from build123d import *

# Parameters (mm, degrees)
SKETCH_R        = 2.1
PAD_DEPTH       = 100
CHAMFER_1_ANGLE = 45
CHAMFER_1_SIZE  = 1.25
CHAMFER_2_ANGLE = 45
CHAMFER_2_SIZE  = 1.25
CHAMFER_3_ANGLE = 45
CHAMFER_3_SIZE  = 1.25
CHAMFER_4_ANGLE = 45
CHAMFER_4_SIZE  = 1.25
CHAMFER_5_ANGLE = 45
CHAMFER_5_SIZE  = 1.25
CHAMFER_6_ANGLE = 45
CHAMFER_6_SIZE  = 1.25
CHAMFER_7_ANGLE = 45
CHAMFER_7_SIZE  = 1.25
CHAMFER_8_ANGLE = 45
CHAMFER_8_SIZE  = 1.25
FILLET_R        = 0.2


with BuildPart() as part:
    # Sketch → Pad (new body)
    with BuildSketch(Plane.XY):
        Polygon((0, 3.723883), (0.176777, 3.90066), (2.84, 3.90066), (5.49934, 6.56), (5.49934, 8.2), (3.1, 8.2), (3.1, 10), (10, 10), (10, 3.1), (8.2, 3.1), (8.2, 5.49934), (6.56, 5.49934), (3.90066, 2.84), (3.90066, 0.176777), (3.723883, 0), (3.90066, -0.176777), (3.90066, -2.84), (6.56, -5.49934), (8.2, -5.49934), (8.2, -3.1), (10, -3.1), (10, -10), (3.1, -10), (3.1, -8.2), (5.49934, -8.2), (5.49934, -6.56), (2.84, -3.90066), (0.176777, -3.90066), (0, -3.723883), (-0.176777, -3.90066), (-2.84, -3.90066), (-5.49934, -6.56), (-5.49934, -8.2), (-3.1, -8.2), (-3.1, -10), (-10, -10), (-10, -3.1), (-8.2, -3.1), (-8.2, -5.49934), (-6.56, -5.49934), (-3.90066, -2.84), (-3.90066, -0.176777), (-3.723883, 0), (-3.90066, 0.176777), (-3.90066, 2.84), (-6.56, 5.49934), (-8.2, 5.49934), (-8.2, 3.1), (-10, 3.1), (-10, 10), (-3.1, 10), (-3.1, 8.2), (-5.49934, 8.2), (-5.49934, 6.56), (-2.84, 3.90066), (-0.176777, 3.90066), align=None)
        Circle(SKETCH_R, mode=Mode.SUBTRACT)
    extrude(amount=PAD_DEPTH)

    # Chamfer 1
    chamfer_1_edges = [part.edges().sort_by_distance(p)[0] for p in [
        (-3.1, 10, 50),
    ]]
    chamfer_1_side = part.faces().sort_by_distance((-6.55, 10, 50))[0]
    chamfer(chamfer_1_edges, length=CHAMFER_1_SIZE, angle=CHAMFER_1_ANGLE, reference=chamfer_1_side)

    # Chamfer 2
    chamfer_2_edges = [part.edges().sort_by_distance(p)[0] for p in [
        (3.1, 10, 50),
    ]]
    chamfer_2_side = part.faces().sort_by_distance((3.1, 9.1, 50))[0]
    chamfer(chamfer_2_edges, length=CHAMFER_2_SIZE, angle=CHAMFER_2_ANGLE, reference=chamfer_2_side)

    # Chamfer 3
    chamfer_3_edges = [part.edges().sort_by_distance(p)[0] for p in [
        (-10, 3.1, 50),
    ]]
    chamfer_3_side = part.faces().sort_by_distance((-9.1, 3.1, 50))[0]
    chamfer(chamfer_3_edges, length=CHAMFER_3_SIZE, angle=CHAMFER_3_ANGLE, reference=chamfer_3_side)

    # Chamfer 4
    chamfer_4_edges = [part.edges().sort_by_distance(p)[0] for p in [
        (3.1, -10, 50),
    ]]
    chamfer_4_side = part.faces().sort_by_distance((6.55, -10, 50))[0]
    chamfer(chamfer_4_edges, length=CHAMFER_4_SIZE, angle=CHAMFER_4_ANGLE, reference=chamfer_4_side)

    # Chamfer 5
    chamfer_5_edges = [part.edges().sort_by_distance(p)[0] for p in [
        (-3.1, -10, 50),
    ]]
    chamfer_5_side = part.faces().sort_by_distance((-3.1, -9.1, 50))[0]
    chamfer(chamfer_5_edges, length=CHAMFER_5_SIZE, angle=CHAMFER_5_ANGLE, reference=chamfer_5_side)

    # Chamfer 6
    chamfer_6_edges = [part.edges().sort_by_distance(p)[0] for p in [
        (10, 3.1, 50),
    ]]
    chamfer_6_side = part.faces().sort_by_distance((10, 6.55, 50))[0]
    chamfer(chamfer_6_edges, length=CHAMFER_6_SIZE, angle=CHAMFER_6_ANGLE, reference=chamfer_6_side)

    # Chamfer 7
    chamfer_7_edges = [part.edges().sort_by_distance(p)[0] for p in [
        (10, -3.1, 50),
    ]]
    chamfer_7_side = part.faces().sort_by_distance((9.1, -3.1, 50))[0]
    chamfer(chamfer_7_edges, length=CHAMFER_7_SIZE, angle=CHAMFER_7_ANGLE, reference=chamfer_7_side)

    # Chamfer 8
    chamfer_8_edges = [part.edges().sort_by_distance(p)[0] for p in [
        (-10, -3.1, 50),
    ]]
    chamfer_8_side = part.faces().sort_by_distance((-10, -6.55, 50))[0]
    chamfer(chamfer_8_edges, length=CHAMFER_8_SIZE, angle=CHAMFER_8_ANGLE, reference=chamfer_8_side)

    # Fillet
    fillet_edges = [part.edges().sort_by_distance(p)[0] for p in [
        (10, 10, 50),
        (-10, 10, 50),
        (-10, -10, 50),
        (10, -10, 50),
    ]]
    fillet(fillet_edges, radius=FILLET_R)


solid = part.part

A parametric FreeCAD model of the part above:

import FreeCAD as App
import Part
import Sketcher

V = App.Vector
Q = App.Units.Quantity


def edges_at(feature, points):
    """Names of the edges that pass closest to the given points."""
    edges = feature.Shape.Edges
    near = lambda p: min(range(len(edges)), key=lambda i: edges[i].distToShape(Part.Vertex(*p))[0])
    return sorted({f"Edge{near(p) + 1}" for p in points})


def add_polygon(sketch, points):
    """Adds a closed chain of lines whose ends are joined by coincident constraints."""
    first, n = sketch.GeometryCount, len(points)
    for a, b in zip(points, points[1:] + points[:1]):
        sketch.addGeometry(Part.LineSegment(App.Vector(*a, 0), App.Vector(*b, 0)), False)
    for i in range(n):
        sketch.addConstraint(Sketcher.Constraint("Coincident", first + i, 2, first + (i + 1) % n, 1))

doc = App.newDocument("Part")
params = doc.addObject("Spreadsheet::Sheet", "Params")
for row, (alias, value) in enumerate([
    ("sketch1_diameter", "4.2 mm"),
    ("sketch1_width", "6.9 mm"),
    ("sketch1_width2", "1.8 mm"),
    ("sketch1_width3", "1.64 mm"),
    ("sketch1_length", "0.25 mm"),
    ("pad1_length", "100 mm"),
    ("chamfer_size", "1.25 mm"),
    ("chamfer2_size", "1.25 mm"),
    ("chamfer3_size", "1.25 mm"),
    ("chamfer4_size", "1.25 mm"),
    ("chamfer5_size", "1.25 mm"),
    ("chamfer6_size", "1.25 mm"),
    ("chamfer7_size", "1.25 mm"),
    ("chamfer8_size", "1.25 mm"),
    ("fillet_radius", "0.2 mm"),
], start=1):
    params.set(f"A{row}", alias)
    params.set(f"B{row}", "=" + value)
    params.setAlias(f"B{row}", alias)

body = doc.addObject("PartDesign::Body", "Body")

sketch1 = body.newObject("Sketcher::SketchObject", "Sketch")
sketch1.AttachmentSupport = (doc.getObject("XY_Plane"), [""])
sketch1.MapMode = "FlatFace"
add_polygon(sketch1, [(0.18, 3.9), (0, 3.72), (-0.18, 3.9), (-2.84, 3.9), (-5.5, 6.56), (-5.5, 8.2), (-3.1, 8.2), (-3.1, 10), (-10, 10), (-10, 3.1), (-8.2, 3.1), (-8.2, 5.5), (-6.56, 5.5), (-3.9, 2.84), (-3.9, 0.18), (-3.72, 0), (-3.9, -0.18), (-3.9, -2.84), (-6.56, -5.5), (-8.2, -5.5), (-8.2, -3.1), (-10, -3.1), (-10, -10), (-3.1, -10), (-3.1, -8.2), (-5.5, -8.2), (-5.5, -6.56), (-2.84, -3.9), (-0.18, -3.9), (0, -3.72), (0.18, -3.9), (2.84, -3.9), (5.5, -6.56), (5.5, -8.2), (3.1, -8.2), (3.1, -10), (10, -10), (10, -3.1), (8.2, -3.1), (8.2, -5.5), (6.56, -5.5), (3.9, -2.84), (3.9, -0.18), (3.72, 0), (3.9, 0.18), (3.9, 2.84), (6.56, 5.5), (8.2, 5.5), (8.2, 3.1), (10, 3.1), (10, 10), (3.1, 10), (3.1, 8.2), (5.5, 8.2), (5.5, 6.56), (2.84, 3.9)])
sketch1.addGeometry(Part.Circle(V(0, 0, 0), V(0, 0, 1), 2.1), False)
sketch1.addConstraint([
    Sketcher.Constraint("Horizontal", 2),
    Sketcher.Constraint("Vertical", 4),
    Sketcher.Constraint("Horizontal", 5),
    Sketcher.Constraint("Vertical", 6),
    Sketcher.Constraint("Horizontal", 7),
    Sketcher.Constraint("Vertical", 8),
    Sketcher.Constraint("Horizontal", 9),
    Sketcher.Constraint("Vertical", 10),
    Sketcher.Constraint("Horizontal", 11),
    Sketcher.Constraint("Vertical", 13),
    Sketcher.Constraint("Vertical", 16),
    Sketcher.Constraint("Horizontal", 18),
    Sketcher.Constraint("Vertical", 19),
    Sketcher.Constraint("Horizontal", 20),
    Sketcher.Constraint("Vertical", 21),
    Sketcher.Constraint("Horizontal", 22),
    Sketcher.Constraint("Vertical", 23),
    Sketcher.Constraint("Horizontal", 24),
    Sketcher.Constraint("Vertical", 25),
    Sketcher.Constraint("Horizontal", 27),
    Sketcher.Constraint("Horizontal", 30),
    Sketcher.Constraint("Vertical", 32),
    Sketcher.Constraint("Horizontal", 33),
    Sketcher.Constraint("Vertical", 34),
    Sketcher.Constraint("Horizontal", 35),
    Sketcher.Constraint("Vertical", 36),
    Sketcher.Constraint("Horizontal", 37),
    Sketcher.Constraint("Vertical", 38),
    Sketcher.Constraint("Horizontal", 39),
    Sketcher.Constraint("Vertical", 41),
    Sketcher.Constraint("Vertical", 44),
    Sketcher.Constraint("Horizontal", 46),
    Sketcher.Constraint("Vertical", 47),
    Sketcher.Constraint("Horizontal", 48),
    Sketcher.Constraint("Vertical", 49),
    Sketcher.Constraint("Horizontal", 50),
    Sketcher.Constraint("Vertical", 51),
    Sketcher.Constraint("Horizontal", 52),
    Sketcher.Constraint("Vertical", 53),
    Sketcher.Constraint("Horizontal", 55),
    Sketcher.Constraint("Coincident", 56, 3, -1, 1),
    Sketcher.Constraint("Symmetric", 0, 2, 28, 2, -1, 1),
    Sketcher.Constraint("Symmetric", 1, 2, 29, 2, -1, 1),
    Sketcher.Constraint("Symmetric", 3, 2, 31, 2, -1, 1),
    Sketcher.Constraint("Symmetric", 5, 2, 33, 2, -1, 1),
    Sketcher.Constraint("Symmetric", 7, 2, 35, 2, -1, 1),
    Sketcher.Constraint("Symmetric", 9, 2, 37, 2, -1, 1),
    Sketcher.Constraint("Symmetric", 11, 2, 39, 2, -1, 1),
    Sketcher.Constraint("Symmetric", 12, 2, 40, 2, -1, 1),
    Sketcher.Constraint("Symmetric", 14, 2, 42, 2, -1, 1),
    Sketcher.Constraint("Symmetric", 15, 2, 43, 2, -1, 1),
    Sketcher.Constraint("Symmetric", 17, 2, 45, 2, -1, 1),
    Sketcher.Constraint("Symmetric", 19, 2, 47, 2, -1, 1),
    Sketcher.Constraint("Symmetric", 21, 2, 49, 2, -1, 1),
    Sketcher.Constraint("Symmetric", 23, 2, 51, 2, -1, 1),
    Sketcher.Constraint("Symmetric", 25, 2, 53, 2, -1, 1),
    Sketcher.Constraint("Symmetric", 26, 2, 54, 2, -1, 1),
    Sketcher.Constraint("Symmetric", 27, 2, 29, 2, -2),
    Sketcher.Constraint("Symmetric", 25, 2, 31, 2, -2),
    Sketcher.Constraint("Symmetric", 23, 2, 33, 2, -2),
    Sketcher.Constraint("Symmetric", 21, 2, 35, 2, -2),
    Sketcher.Constraint("Symmetric", 19, 2, 37, 2, -2),
    Sketcher.Constraint("Symmetric", 17, 2, 39, 2, -2),
    Sketcher.Constraint("Symmetric", 16, 2, 40, 2, -2),
    Sketcher.Constraint("PointOnObject", 0, 2, -2),
    Sketcher.Constraint("PointOnObject", 14, 2, -1),
    Sketcher.Constraint("Perpendicular", 0, 1),
    Sketcher.Constraint("Parallel", 1, 3),
    Sketcher.Constraint("Parallel", 3, 12),
    Sketcher.Constraint("Parallel", 12, 14),
    Sketcher.Constraint("Perpendicular", 14, 15),
    Sketcher.Constraint("Parallel", 15, 17),
    Sketcher.Constraint("Parallel", 17, 26),
    Sketcher.Constraint("Parallel", 29, 31),
    Sketcher.Constraint("Parallel", 40, 42),
    Sketcher.Constraint("Parallel", 43, 45),
    Sketcher.Constraint("Equal", 46, 4),
    Sketcher.Constraint("Equal", 48, 6),
    Sketcher.Constraint("Equal", 50, 8),
    Sketcher.Constraint("Equal", 52, 10),
    Sketcher.Constraint("Equal", 55, 13),
    Sketcher.Constraint("Equal", 3, 12),
    Sketcher.Constraint("Equal", 1, 14),
    Sketcher.Constraint("Diameter", 56, Q("4.2 mm")),
    Sketcher.Constraint("DistanceX", 7, 2, 7, 1, Q("6.9 mm")),
    Sketcher.Constraint("DistanceX", 9, 1, 9, 2, Q("1.8 mm")),
    Sketcher.Constraint("DistanceY", -1, 1, 6, 2, Q("10 mm")),
    Sketcher.Constraint("DistanceX", 11, 1, 11, 2, Q("1.64 mm")),
    Sketcher.Constraint("Distance", 0, Q("0.25 mm")),
    Sketcher.Constraint("DistanceX", 2, 2, -1, 1, Q("2.84 mm")),
    Sketcher.Constraint("DistanceX", 5, 1, 5, 2, Q("2.39934 mm")),
])
sketch1.setExpression("Constraints[139]", "Params.sketch1_diameter")
sketch1.setExpression("Constraints[140]", "Params.sketch1_width")
sketch1.setExpression("Constraints[141]", "Params.sketch1_width2")
sketch1.setExpression("Constraints[143]", "Params.sketch1_width3")
sketch1.setExpression("Constraints[144]", "Params.sketch1_length")
pad1 = body.newObject("PartDesign::Pad", "Pad")
pad1.Profile = sketch1
pad1.setExpression("Length", "Params.pad1_length")
doc.recompute()

chamfer = body.newObject("PartDesign::Chamfer", "Chamfer")
chamfer.Base = (pad1, edges_at(pad1, [(-3.1, 10, 50)]))
chamfer.setExpression("Size", "Params.chamfer_size")
doc.recompute()

chamfer2 = body.newObject("PartDesign::Chamfer", "Chamfer001")
chamfer2.Base = (chamfer, edges_at(chamfer, [(3.1, 10, 50)]))
chamfer2.setExpression("Size", "Params.chamfer2_size")
doc.recompute()

chamfer3 = body.newObject("PartDesign::Chamfer", "Chamfer002")
chamfer3.Base = (chamfer2, edges_at(chamfer2, [(-10, 3.1, 50)]))
chamfer3.setExpression("Size", "Params.chamfer3_size")
doc.recompute()

chamfer4 = body.newObject("PartDesign::Chamfer", "Chamfer003")
chamfer4.Base = (chamfer3, edges_at(chamfer3, [(3.1, -10, 50)]))
chamfer4.setExpression("Size", "Params.chamfer4_size")
doc.recompute()

chamfer5 = body.newObject("PartDesign::Chamfer", "Chamfer004")
chamfer5.Base = (chamfer4, edges_at(chamfer4, [(-3.1, -10, 50)]))
chamfer5.setExpression("Size", "Params.chamfer5_size")
doc.recompute()

chamfer6 = body.newObject("PartDesign::Chamfer", "Chamfer005")
chamfer6.Base = (chamfer5, edges_at(chamfer5, [(10, 3.1, 50)]))
chamfer6.setExpression("Size", "Params.chamfer6_size")
doc.recompute()

chamfer7 = body.newObject("PartDesign::Chamfer", "Chamfer006")
chamfer7.Base = (chamfer6, edges_at(chamfer6, [(10, -3.1, 50)]))
chamfer7.setExpression("Size", "Params.chamfer7_size")
doc.recompute()

chamfer8 = body.newObject("PartDesign::Chamfer", "Chamfer007")
chamfer8.Base = (chamfer7, edges_at(chamfer7, [(-10, -3.1, 50)]))
chamfer8.setExpression("Size", "Params.chamfer8_size")
doc.recompute()

fillet = body.newObject("PartDesign::Fillet", "Fillet")
fillet.Base = (chamfer8, edges_at(chamfer8, [
    (10, 10, 50),
    (-10, 10, 50),
    (-10, -10, 50),
    (10, -10, 50),
]))
fillet.setExpression("Radius", "Params.fillet_radius")

doc.recompute()
